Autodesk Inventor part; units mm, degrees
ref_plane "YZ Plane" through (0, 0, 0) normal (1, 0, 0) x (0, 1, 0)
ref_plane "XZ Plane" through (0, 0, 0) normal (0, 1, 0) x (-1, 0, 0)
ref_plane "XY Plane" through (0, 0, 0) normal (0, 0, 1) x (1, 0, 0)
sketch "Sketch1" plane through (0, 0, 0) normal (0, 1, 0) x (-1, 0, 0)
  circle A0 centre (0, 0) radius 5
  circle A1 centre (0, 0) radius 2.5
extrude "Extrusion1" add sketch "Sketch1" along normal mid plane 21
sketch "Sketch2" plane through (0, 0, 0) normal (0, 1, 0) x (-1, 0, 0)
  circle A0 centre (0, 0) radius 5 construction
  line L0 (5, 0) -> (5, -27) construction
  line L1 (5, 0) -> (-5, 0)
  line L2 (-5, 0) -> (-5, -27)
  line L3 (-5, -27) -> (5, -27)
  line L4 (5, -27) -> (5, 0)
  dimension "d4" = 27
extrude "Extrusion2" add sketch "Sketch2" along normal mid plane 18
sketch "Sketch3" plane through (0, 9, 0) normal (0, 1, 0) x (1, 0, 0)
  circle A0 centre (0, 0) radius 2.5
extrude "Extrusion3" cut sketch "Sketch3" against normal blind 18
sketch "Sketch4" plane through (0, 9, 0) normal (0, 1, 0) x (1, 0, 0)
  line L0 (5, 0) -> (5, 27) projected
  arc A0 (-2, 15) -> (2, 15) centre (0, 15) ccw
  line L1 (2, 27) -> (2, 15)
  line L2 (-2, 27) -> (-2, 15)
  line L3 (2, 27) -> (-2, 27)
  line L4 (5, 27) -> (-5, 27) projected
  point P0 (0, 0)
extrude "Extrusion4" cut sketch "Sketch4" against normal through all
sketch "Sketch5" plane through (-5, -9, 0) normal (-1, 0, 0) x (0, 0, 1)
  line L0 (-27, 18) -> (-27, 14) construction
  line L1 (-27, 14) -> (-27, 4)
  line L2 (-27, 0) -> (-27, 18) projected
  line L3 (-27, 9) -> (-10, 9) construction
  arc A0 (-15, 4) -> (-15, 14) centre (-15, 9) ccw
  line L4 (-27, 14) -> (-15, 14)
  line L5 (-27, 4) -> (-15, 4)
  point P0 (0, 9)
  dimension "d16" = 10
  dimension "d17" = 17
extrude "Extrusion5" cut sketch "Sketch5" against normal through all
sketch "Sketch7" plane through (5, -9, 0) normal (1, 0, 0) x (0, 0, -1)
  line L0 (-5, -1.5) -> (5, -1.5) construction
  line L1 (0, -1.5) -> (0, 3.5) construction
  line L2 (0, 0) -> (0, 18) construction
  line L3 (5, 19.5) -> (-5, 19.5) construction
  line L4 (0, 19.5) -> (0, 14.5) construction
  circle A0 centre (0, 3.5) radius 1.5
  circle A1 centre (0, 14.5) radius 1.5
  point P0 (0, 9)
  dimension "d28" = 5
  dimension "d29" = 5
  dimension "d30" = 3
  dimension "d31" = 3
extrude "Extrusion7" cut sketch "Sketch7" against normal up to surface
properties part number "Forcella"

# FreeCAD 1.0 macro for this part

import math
import FreeCAD as App
import Part
import Sketcher
Q = App.Units.Quantity


def add_polygon(sketch, points):
    """Adds a closed chain of lines whose ends are joined by coincident constraints."""
    first, n = sketch.GeometryCount, len(points)
    for a, b in zip(points, points[1:] + points[:1]):
        sketch.addGeometry(Part.LineSegment(App.Vector(*a, 0), App.Vector(*b, 0)), False)
    for i in range(n):
        sketch.addConstraint(Sketcher.Constraint("Coincident", first + i, 2, first + (i + 1) % n, 1))

doc = App.newDocument("Part")
body = doc.addObject("PartDesign::Body", "Body")

sketch1 = doc.addObject("Sketcher::SketchObject", "Sketch")
body.addObject(sketch1)
sketch1.AttachmentSupport = (doc.XZ_Plane, [""])
sketch1.MapMode = "FlatFace"
sketch1.addGeometry([
    Part.Circle(App.Vector(0, 0, 0), App.Vector(0, 0, 1), 5),
    Part.Circle(App.Vector(0, 0, 0), App.Vector(0, 0, 1), 2.5),
], False)
sketch1.addConstraint([
    Sketcher.Constraint("Coincident", 0, 3, -1, 1),
    Sketcher.Constraint("Coincident", 1, 3, -1, 1),
    Sketcher.Constraint("Diameter", 0, Q("10 mm")),
    Sketcher.Constraint("Diameter", 1, Q("5 mm")),
])
pad1 = doc.addObject("PartDesign::Pad", "Pad")
body.addObject(pad1)
pad1.Profile = sketch1
pad1.Length = 21
pad1.Midplane = True

sketch2 = doc.addObject("Sketcher::SketchObject", "Sketch001")
body.addObject(sketch2)
sketch2.AttachmentSupport = (doc.XZ_Plane, [""])
sketch2.MapMode = "FlatFace"
add_polygon(sketch2, [(-5, -27), (-5, 0), (5, 0), (5, -27)])
sketch2.addConstraint([
    Sketcher.Constraint("Vertical", 0),
    Sketcher.Constraint("Horizontal", 1),
    Sketcher.Constraint("Vertical", 2),
    Sketcher.Constraint("Horizontal", 3),
    Sketcher.Constraint("Symmetric", 0, 2, 1, 2, -1, 1),
    Sketcher.Constraint("DistanceY", 0, 1, 0, 2, Q("27 mm")),
    Sketcher.Constraint("DistanceX", 1, 1, 1, 2, Q("10 mm")),
])
pad2 = doc.addObject("PartDesign::Pad", "Pad001")
body.addObject(pad2)
pad2.Profile = sketch2
pad2.Length = 18
pad2.Midplane = True

sketch3 = doc.addObject("Sketcher::SketchObject", "Sketch002")
body.addObject(sketch3)
sketch3.AttachmentSupport = (doc.XZ_Plane, [""])
sketch3.MapMode = "FlatFace"
sketch3.AttachmentOffset = App.Placement(App.Vector(0, 0, -9), App.Rotation())
sketch3.addGeometry(Part.Circle(App.Vector(0, 0, 0), App.Vector(0, 0, 1), 2.5), False)
sketch3.addConstraint([
    Sketcher.Constraint("Coincident", 0, 3, -1, 1),
    Sketcher.Constraint("Diameter", 0, Q("5 mm")),
])
pocket1 = doc.addObject("PartDesign::Pocket", "Pocket")
body.addObject(pocket1)
pocket1.Profile = sketch3
pocket1.Length = 18
pocket1.Reversed = True

sketch4 = doc.addObject("Sketcher::SketchObject", "Sketch003")
body.addObject(sketch4)
sketch4.AttachmentSupport = (doc.XZ_Plane, [""])
sketch4.MapMode = "FlatFace"
sketch4.AttachmentOffset = App.Placement(App.Vector(0, 0, -9), App.Rotation())
sketch4.addGeometry([
    Part.LineSegment(App.Vector(-2, -27, 0), App.Vector(-2, -15, 0)),
    Part.ArcOfCircle(Part.Circle(App.Vector(0, -15, 0), App.Vector(0, 0, 1), 2), math.radians(0), math.radians(180)),
    Part.LineSegment(App.Vector(2, -15, 0), App.Vector(2, -27, 0)),
    Part.LineSegment(App.Vector(2, -27, 0), App.Vector(-2, -27, 0)),
], False)
sketch4.addConstraint([
    Sketcher.Constraint("Tangent", 0, 2, 1, 2),
    Sketcher.Constraint("Tangent", 1, 1, 2, 1),
    Sketcher.Constraint("Coincident", 2, 2, 3, 1),
    Sketcher.Constraint("Coincident", 3, 2, 0, 1),
    Sketcher.Constraint("Vertical", 0),
    Sketcher.Constraint("Vertical", 2),
    Sketcher.Constraint("Horizontal", 3),
    Sketcher.Constraint("PointOnObject", 1, 3, -2),
    Sketcher.Constraint("Radius", 1, Q("2 mm")),
    Sketcher.Constraint("DistanceY", 0, 1, 0, 2, Q("12 mm")),
    Sketcher.Constraint("DistanceY", 1, 3, -1, 1, Q("15 mm")),
])
pocket2 = doc.addObject("PartDesign::Pocket", "Pocket001")
body.addObject(pocket2)
pocket2.Profile = sketch4
pocket2.Type = "ThroughAll"
pocket2.Reversed = True

sketch5 = doc.addObject("Sketcher::SketchObject", "Sketch004")
body.addObject(sketch5)
sketch5.AttachmentSupport = (doc.YZ_Plane, [""])
sketch5.MapMode = "FlatFace"
sketch5.AttachmentOffset = App.Placement(App.Vector(0, 0, -5), App.Rotation())
sketch5.addGeometry([
    Part.LineSegment(App.Vector(5, -15, 0), App.Vector(5, -27, 0)),
    Part.LineSegment(App.Vector(5, -27, 0), App.Vector(-5, -27, 0)),
    Part.LineSegment(App.Vector(-5, -27, 0), App.Vector(-5, -15, 0)),
    Part.ArcOfCircle(Part.Circle(App.Vector(0, -15, 0), App.Vector(0, 0, 1), 5), math.radians(0), math.radians(180)),
], False)
sketch5.addConstraint([
    Sketcher.Constraint("Coincident", 0, 2, 1, 1),
    Sketcher.Constraint("Coincident", 1, 2, 2, 1),
    Sketcher.Constraint("Tangent", 2, 2, 3, 2),
    Sketcher.Constraint("Tangent", 3, 1, 0, 1),
    Sketcher.Constraint("Vertical", 0),
    Sketcher.Constraint("Horizontal", 1),
    Sketcher.Constraint("Vertical", 2),
    Sketcher.Constraint("PointOnObject", 3, 3, -2),
    Sketcher.Constraint("Radius", 3, Q("5 mm")),
    Sketcher.Constraint("DistanceY", 0, 2, 0, 1, Q("12 mm")),
    Sketcher.Constraint("DistanceY", 3, 3, -1, 1, Q("15 mm")),
])
pocket3 = doc.addObject("PartDesign::Pocket", "Pocket002")
body.addObject(pocket3)
pocket3.Profile = sketch5
pocket3.Type = "ThroughAll"
pocket3.Reversed = True

sketch6 = doc.addObject("Sketcher::SketchObject", "Sketch005")
body.addObject(sketch6)
sketch6.AttachmentSupport = (doc.YZ_Plane, [""])
sketch6.MapMode = "FlatFace"
sketch6.AttachmentOffset = App.Placement(App.Vector(0, 0, 5), App.Rotation())
sketch6.addGeometry([
    Part.Circle(App.Vector(-5.5, 0, 0), App.Vector(0, 0, 1), 1.5),
    Part.Circle(App.Vector(5.5, 0, 0), App.Vector(0, 0, 1), 1.5),
], False)
sketch6.addConstraint([
    Sketcher.Constraint("Equal", 0, 1),
    Sketcher.Constraint("Symmetric", 0, 3, 1, 3, -1, 1),
    Sketcher.Constraint("PointOnObject", 0, 3, -1),
    Sketcher.Constraint("Diameter", 0, Q("3 mm")),
    Sketcher.Constraint("DistanceX", 0, 3, 1, 3, Q("11 mm")),
])
pocket4 = doc.addObject("PartDesign::Pocket", "Pocket003")
body.addObject(pocket4)
pocket4.Profile = sketch6
pocket4.Length = 3

doc.recompute()
